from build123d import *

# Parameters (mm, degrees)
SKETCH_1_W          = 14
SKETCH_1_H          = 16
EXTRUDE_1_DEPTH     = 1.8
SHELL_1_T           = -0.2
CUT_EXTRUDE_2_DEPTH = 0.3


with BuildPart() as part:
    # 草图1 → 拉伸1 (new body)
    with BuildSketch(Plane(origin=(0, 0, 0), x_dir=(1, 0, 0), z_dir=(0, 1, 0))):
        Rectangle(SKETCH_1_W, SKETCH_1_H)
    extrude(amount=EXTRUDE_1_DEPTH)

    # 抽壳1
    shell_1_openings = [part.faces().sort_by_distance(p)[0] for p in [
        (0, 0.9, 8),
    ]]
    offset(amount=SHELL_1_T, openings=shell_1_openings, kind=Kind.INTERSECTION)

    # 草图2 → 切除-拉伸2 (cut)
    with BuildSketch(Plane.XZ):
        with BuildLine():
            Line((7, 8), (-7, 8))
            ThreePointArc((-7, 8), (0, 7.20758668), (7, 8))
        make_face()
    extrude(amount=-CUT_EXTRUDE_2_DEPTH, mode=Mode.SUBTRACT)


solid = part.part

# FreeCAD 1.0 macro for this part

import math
import FreeCAD as App
import Part
import Sketcher
Q = App.Units.Quantity


def faces_at(feature, points):
    """Names of the faces that lie closest to the given points."""
    faces = feature.Shape.Faces
    near = lambda p: min(range(len(faces)), key=lambda i: faces[i].distToShape(Part.Vertex(*p))[0])
    return sorted({f"Face{near(p) + 1}" for p in points})


def add_polygon(sketch, points):
    """Adds a closed chain of lines whose ends are joined by coincident constraints."""
    first, n = sketch.GeometryCount, len(points)
    for a, b in zip(points, points[1:] + points[:1]):
        sketch.addGeometry(Part.LineSegment(App.Vector(*a, 0), App.Vector(*b, 0)), False)
    for i in range(n):
        sketch.addConstraint(Sketcher.Constraint("Coincident", first + i, 2, first + (i + 1) % n, 1))

doc = App.newDocument("Part")
body = doc.addObject("PartDesign::Body", "Body")

# Sketch on XZ plane
sketch1 = doc.addObject("Sketcher::SketchObject", "Sketch")
body.addObject(sketch1)
sketch1.AttachmentSupport = (doc.XZ_Plane, [""])
sketch1.MapMode = "FlatFace"
add_polygon(sketch1, [(-7, -8), (-7, 8), (7, 8), (7, -8)])  # lines 0-3
sketch1.addConstraint(Sketcher.Constraint("Vertical", 0))
sketch1.addConstraint(Sketcher.Constraint("Horizontal", 1))
sketch1.addConstraint(Sketcher.Constraint("Vertical", 2))
sketch1.addConstraint(Sketcher.Constraint("Horizontal", 3))
sketch1.addConstraint(Sketcher.Constraint("Symmetric", 0, 2, 2, 2, -1, 1))
sketch1.addConstraint(Sketcher.Constraint("DistanceX", 1, 1, 1, 2, Q("14 mm")))
sketch1.addConstraint(Sketcher.Constraint("DistanceY", 0, 1, 0, 2, Q("16 mm")))
pad1 = doc.addObject("PartDesign::Pad", "Pad")
body.addObject(pad1)
pad1.Profile = sketch1
pad1.Length = 1.8
pad1.Reversed = True
doc.recompute()

thickness = doc.addObject("PartDesign::Thickness", "Thickness")
body.addObject(thickness)
thickness.Base = (pad1, faces_at(pad1, [(0, 0.9, 8)]))
thickness.Value = 0.2
thickness.Reversed = True
thickness.Join = "Intersection"

# Sketch on XZ plane
sketch2 = doc.addObject("Sketcher::SketchObject", "Sketch001")
body.addObject(sketch2)
sketch2.AttachmentSupport = (doc.XZ_Plane, [""])
sketch2.MapMode = "FlatFace"
sketch2.addGeometry(Part.LineSegment(App.Vector(7, 8, 0), App.Vector(-7, 8, 0)), False)
sketch2.addGeometry(Part.ArcOfCircle(Part.Circle(App.Vector(0, 39, 0), App.Vector(0, 0, 1), 31), math.radians(-103), math.radians(-77)), False)
sketch2.addConstraint(Sketcher.Constraint("Coincident", 0, 1, 1, 2))
sketch2.addConstraint(Sketcher.Constraint("Coincident", 1, 1, 0, 2))
sketch2.addConstraint(Sketcher.Constraint("Horizontal", 0))
sketch2.addConstraint(Sketcher.Constraint("PointOnObject", 1, 3, -2))
sketch2.addConstraint(Sketcher.Constraint("DistanceX", 0, 2, 0, 1, Q("14 mm")))
sketch2.addConstraint(Sketcher.Constraint("DistanceY", -1, 1, 0, 1, Q("8 mm")))
sketch2.addConstraint(Sketcher.Constraint("DistanceY", -1, 1, 1, 3, Q("38.522002 mm")))
pocket1 = doc.addObject("PartDesign::Pocket", "Pocket")
body.addObject(pocket1)
pocket1.Profile = sketch2
pocket1.Length = 0.3

doc.recompute()
